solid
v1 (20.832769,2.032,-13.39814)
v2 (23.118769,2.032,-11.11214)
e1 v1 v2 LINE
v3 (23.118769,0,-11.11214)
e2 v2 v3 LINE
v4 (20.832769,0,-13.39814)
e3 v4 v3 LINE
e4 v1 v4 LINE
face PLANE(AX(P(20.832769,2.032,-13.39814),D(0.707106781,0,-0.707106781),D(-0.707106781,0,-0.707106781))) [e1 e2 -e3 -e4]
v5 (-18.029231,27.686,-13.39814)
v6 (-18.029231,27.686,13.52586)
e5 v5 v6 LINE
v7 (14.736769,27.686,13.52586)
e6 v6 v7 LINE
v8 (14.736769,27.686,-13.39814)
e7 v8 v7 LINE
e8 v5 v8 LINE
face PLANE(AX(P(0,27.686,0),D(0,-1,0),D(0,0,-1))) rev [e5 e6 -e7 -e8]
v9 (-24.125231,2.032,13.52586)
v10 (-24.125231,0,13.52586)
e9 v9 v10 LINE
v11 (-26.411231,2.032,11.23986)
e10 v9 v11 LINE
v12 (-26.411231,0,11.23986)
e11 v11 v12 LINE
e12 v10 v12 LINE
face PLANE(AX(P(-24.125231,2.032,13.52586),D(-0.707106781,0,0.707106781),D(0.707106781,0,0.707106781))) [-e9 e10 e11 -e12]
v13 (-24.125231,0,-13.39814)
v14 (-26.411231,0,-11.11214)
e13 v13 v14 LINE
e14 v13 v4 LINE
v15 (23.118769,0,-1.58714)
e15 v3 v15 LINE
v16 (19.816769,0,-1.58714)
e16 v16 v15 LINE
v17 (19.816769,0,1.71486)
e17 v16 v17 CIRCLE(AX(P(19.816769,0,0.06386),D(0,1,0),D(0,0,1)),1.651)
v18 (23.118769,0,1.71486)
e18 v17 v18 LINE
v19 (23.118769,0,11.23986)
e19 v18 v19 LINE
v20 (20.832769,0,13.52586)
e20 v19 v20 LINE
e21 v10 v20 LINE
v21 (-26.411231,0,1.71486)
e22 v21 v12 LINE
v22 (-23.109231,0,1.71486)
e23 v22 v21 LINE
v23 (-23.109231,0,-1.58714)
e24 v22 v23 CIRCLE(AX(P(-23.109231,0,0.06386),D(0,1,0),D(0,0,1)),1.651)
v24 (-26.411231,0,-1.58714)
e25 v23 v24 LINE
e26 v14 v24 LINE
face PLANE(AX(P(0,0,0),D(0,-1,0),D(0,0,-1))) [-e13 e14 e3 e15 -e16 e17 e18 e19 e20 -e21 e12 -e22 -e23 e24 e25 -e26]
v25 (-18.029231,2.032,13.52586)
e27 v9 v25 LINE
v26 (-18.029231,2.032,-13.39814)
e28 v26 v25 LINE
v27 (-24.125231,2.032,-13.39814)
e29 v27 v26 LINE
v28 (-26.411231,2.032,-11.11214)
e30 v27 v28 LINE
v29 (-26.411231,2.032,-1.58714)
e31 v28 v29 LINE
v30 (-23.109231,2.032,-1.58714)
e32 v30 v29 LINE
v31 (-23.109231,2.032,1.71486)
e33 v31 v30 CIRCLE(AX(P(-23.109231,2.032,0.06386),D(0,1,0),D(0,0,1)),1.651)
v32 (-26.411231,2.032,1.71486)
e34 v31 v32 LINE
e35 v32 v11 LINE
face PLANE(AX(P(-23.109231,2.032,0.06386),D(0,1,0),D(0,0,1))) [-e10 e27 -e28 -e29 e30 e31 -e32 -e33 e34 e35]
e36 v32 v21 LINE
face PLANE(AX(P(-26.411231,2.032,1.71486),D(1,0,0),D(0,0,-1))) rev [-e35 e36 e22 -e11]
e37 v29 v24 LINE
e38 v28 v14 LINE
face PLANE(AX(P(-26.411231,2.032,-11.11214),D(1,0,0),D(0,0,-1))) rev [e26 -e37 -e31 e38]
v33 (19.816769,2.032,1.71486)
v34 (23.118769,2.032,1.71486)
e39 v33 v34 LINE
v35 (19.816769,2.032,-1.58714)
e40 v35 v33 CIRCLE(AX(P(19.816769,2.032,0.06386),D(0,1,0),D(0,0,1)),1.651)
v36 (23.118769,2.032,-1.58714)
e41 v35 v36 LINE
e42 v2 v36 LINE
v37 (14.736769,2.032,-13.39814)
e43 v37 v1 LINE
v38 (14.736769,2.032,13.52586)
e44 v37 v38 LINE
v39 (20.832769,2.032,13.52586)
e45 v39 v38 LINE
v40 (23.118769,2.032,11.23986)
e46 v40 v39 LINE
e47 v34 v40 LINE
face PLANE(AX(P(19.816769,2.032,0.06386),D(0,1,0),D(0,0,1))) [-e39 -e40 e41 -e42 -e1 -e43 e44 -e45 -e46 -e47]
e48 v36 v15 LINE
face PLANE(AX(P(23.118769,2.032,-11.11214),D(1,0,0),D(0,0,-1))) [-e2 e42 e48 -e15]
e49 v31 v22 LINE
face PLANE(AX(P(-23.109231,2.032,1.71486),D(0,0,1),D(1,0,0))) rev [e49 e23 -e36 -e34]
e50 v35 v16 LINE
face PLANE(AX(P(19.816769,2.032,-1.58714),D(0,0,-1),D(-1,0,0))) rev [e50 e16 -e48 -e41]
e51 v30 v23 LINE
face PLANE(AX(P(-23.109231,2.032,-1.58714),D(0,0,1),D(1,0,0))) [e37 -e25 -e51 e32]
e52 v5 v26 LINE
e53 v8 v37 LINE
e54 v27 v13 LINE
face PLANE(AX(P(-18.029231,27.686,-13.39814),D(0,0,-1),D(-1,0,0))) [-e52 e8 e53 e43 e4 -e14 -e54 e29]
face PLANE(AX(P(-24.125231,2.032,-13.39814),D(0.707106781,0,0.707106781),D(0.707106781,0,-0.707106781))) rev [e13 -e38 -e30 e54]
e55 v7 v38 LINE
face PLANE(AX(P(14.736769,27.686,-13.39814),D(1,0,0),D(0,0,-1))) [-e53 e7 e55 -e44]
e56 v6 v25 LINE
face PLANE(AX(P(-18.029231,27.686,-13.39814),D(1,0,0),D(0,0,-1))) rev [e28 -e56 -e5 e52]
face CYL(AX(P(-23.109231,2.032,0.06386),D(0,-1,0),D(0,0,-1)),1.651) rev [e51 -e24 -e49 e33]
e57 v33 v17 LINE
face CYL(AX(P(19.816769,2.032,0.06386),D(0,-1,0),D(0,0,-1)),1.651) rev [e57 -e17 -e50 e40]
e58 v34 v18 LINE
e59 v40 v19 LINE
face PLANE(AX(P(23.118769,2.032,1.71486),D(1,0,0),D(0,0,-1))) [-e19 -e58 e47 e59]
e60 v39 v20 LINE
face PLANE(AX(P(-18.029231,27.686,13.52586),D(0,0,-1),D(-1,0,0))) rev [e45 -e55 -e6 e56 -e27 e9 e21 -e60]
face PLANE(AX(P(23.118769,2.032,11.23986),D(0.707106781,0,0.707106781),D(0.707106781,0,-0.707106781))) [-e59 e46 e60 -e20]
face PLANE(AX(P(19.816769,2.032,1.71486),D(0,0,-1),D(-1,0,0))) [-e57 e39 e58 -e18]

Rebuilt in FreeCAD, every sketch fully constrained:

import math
import FreeCAD as App
import Part
import Sketcher

V = App.Vector
Q = App.Units.Quantity

doc = App.newDocument("Part")
body = doc.addObject("PartDesign::Body", "Body")

sketch1 = doc.addObject("Sketcher::SketchObject", "Sketch")
body.addObject(sketch1)
sketch1.AttachmentSupport = (doc.XZ_Plane, [""])
sketch1.MapMode = "FlatFace"
sketch1.addGeometry([
    Part.LineSegment(V(-18, -13, 0), V(-18, 14, 0)),
    Part.LineSegment(V(-18, 14, 0), V(15, 14, 0)),
    Part.LineSegment(V(15, 14, 0), V(15, -13, 0)),
    Part.LineSegment(V(15, -13, 0), V(-18, -13, 0)),
], False)
sketch1.addConstraint([
    Sketcher.Constraint("Coincident", 0, 2, 1, 1),
    Sketcher.Constraint("Coincident", 1, 2, 2, 1),
    Sketcher.Constraint("Coincident", 2, 2, 3, 1),
    Sketcher.Constraint("Coincident", 3, 2, 0, 1),
    Sketcher.Constraint("Vertical", 0),
    Sketcher.Constraint("Horizontal", 1),
    Sketcher.Constraint("Vertical", 2),
    Sketcher.Constraint("Horizontal", 3),
    Sketcher.Constraint("DistanceX", 1, 1, 1, 2, Q("1.29 in")),
    Sketcher.Constraint("DistanceY", 0, 1, 0, 2, Q("1.06 in")),
    Sketcher.Constraint("DistanceX", 0, 2, -1, 1, Q("18.029231 mm")),
    Sketcher.Constraint("DistanceY", -1, 1, 0, 2, Q("13.52586 mm")),
])
pad1 = doc.addObject("PartDesign::Pad", "Pad")
body.addObject(pad1)
pad1.Profile = sketch1
pad1.Length = Q("1.09 in")
pad1.Reversed = True

sketch2 = doc.addObject("Sketcher::SketchObject", "Sketch001")
body.addObject(sketch2)
sketch2.AttachmentSupport = (doc.XZ_Plane, [""])
sketch2.MapMode = "FlatFace"
sketch2.addGeometry([
    Part.LineSegment(V(-18, 13.5, 0), V(-18, -13.4, 0)),
    Part.LineSegment(V(-18, -13.4, 0), V(-24.1, -13.4, 0)),
    Part.LineSegment(V(-24.1, -13.4, 0), V(-26.4, -11.1, 0)),
    Part.LineSegment(V(-26.4, -11.1, 0), V(-26.4, -1.6, 0)),
    Part.LineSegment(V(-26.4, -1.6, 0), V(-23.1, -1.6, 0)),
    Part.ArcOfCircle(Part.Circle(V(-23.1, 0.1, 0), V(0, 0, 1), 1.7), math.radians(-90), math.radians(90)),
    Part.LineSegment(V(-23.1, 1.7, 0), V(-26.4, 1.7, 0)),
    Part.LineSegment(V(-26.4, 1.7, 0), V(-26.4, 11.2, 0)),
    Part.LineSegment(V(-26.4, 11.2, 0), V(-24.1, 13.5, 0)),
    Part.LineSegment(V(-24.1, 13.5, 0), V(-18, 13.5, 0)),
], False)
sketch2.addConstraint([
    Sketcher.Constraint("Coincident", 0, 2, 1, 1),
    Sketcher.Constraint("Coincident", 1, 2, 2, 1),
    Sketcher.Constraint("Coincident", 2, 2, 3, 1),
    Sketcher.Constraint("Coincident", 3, 2, 4, 1),
    Sketcher.Constraint("Tangent", 4, 2, 5, 1),
    Sketcher.Constraint("Tangent", 5, 2, 6, 1),
    Sketcher.Constraint("Coincident", 6, 2, 7, 1),
    Sketcher.Constraint("Coincident", 7, 2, 8, 1),
    Sketcher.Constraint("Coincident", 8, 2, 9, 1),
    Sketcher.Constraint("Coincident", 9, 2, 0, 1),
    Sketcher.Constraint("Vertical", 0),
    Sketcher.Constraint("Horizontal", 1),
    Sketcher.Constraint("Vertical", 3),
    Sketcher.Constraint("Horizontal", 4),
    Sketcher.Constraint("Horizontal", 6),
    Sketcher.Constraint("Vertical", 7),
    Sketcher.Constraint("Horizontal", 9),
    Sketcher.Constraint("Perpendicular", 2, 8),
    Sketcher.Constraint("Vertical", 3, 2, 6, 2),
    Sketcher.Constraint("Vertical", 1, 2, 8, 2),
    Sketcher.Constraint("Equal", 3, 7),
    Sketcher.Constraint("Equal", 2, 8),
    Sketcher.Constraint("Radius", 5, Q("0.065 in")),
    Sketcher.Constraint("DistanceX", 1, 2, 1, 1, Q("0.24 in")),
    Sketcher.Constraint("DistanceX", 4, 1, 4, 2, Q("0.13 in")),
    Sketcher.Constraint("DistanceY", 0, 2, 0, 1, Q("1.06 in")),
    Sketcher.Constraint("DistanceX", 5, 3, 0, 2, Q("0.2 in")),
    Sketcher.Constraint("DistanceX", 5, 3, -1, 1, Q("23.109231 mm")),
    Sketcher.Constraint("DistanceY", -1, 1, 5, 3, Q("0.06386 mm")),
])
pad2 = doc.addObject("PartDesign::Pad", "Pad001")
body.addObject(pad2)
pad2.Profile = sketch2
pad2.Length = Q("0.08 in")
pad2.Reversed = True

sketch3 = doc.addObject("Sketcher::SketchObject", "Sketch002")
body.addObject(sketch3)
sketch3.AttachmentSupport = (doc.XZ_Plane, [""])
sketch3.MapMode = "FlatFace"
sketch3.addGeometry([
    Part.LineSegment(V(14.7, 13.5, 0), V(20.8, 13.5, 0)),
    Part.LineSegment(V(20.8, 13.5, 0), V(23.1, 11.2, 0)),
    Part.LineSegment(V(23.1, 11.2, 0), V(23.1, 1.7, 0)),
    Part.LineSegment(V(23.1, 1.7, 0), V(19.8, 1.7, 0)),
    Part.ArcOfCircle(Part.Circle(V(19.8, 0.1, 0), V(0, 0, 1), 1.7), math.radians(90), math.radians(270)),
    Part.LineSegment(V(19.8, -1.6, 0), V(23.1, -1.6, 0)),
    Part.LineSegment(V(23.1, -1.6, 0), V(23.1, -11.1, 0)),
    Part.LineSegment(V(23.1, -11.1, 0), V(20.8, -13.4, 0)),
    Part.LineSegment(V(20.8, -13.4, 0), V(14.7, -13.4, 0)),
    Part.LineSegment(V(14.7, -13.4, 0), V(14.7, 13.5, 0)),
], False)
sketch3.addConstraint([
    Sketcher.Constraint("Coincident", 0, 2, 1, 1),
    Sketcher.Constraint("Coincident", 1, 2, 2, 1),
    Sketcher.Constraint("Coincident", 2, 2, 3, 1),
    Sketcher.Constraint("Tangent", 3, 2, 4, 1),
    Sketcher.Constraint("Tangent", 4, 2, 5, 1),
    Sketcher.Constraint("Coincident", 5, 2, 6, 1),
    Sketcher.Constraint("Coincident", 6, 2, 7, 1),
    Sketcher.Constraint("Coincident", 7, 2, 8, 1),
    Sketcher.Constraint("Coincident", 8, 2, 9, 1),
    Sketcher.Constraint("Coincident", 9, 2, 0, 1),
    Sketcher.Constraint("Horizontal", 0),
    Sketcher.Constraint("Vertical", 2),
    Sketcher.Constraint("Horizontal", 3),
    Sketcher.Constraint("Horizontal", 5),
    Sketcher.Constraint("Vertical", 6),
    Sketcher.Constraint("Horizontal", 8),
    Sketcher.Constraint("Vertical", 9),
    Sketcher.Constraint("Perpendicular", 1, 7),
    Sketcher.Constraint("Vertical", 2, 2, 5, 2),
    Sketcher.Constraint("Vertical", 0, 2, 7, 2),
    Sketcher.Constraint("Equal", 2, 6),
    Sketcher.Constraint("Equal", 1, 7),
    Sketcher.Constraint("Radius", 4, Q("0.065 in")),
    Sketcher.Constraint("DistanceX", 0, 1, 0, 2, Q("0.24 in")),
    Sketcher.Constraint("DistanceX", 3, 2, 3, 1, Q("0.13 in")),
    Sketcher.Constraint("DistanceY", 9, 1, 9, 2, Q("1.06 in")),
    Sketcher.Constraint("DistanceX", 8, 2, 4, 2, Q("0.2 in")),
    Sketcher.Constraint("DistanceX", -1, 1, 4, 3, Q("19.816769 mm")),
    Sketcher.Constraint("DistanceY", -1, 1, 4, 3, Q("0.06386 mm")),
])
pad3 = doc.addObject("PartDesign::Pad", "Pad002")
body.addObject(pad3)
pad3.Profile = sketch3
pad3.Length = Q("0.08 in")
pad3.Reversed = True

doc.recompute()
